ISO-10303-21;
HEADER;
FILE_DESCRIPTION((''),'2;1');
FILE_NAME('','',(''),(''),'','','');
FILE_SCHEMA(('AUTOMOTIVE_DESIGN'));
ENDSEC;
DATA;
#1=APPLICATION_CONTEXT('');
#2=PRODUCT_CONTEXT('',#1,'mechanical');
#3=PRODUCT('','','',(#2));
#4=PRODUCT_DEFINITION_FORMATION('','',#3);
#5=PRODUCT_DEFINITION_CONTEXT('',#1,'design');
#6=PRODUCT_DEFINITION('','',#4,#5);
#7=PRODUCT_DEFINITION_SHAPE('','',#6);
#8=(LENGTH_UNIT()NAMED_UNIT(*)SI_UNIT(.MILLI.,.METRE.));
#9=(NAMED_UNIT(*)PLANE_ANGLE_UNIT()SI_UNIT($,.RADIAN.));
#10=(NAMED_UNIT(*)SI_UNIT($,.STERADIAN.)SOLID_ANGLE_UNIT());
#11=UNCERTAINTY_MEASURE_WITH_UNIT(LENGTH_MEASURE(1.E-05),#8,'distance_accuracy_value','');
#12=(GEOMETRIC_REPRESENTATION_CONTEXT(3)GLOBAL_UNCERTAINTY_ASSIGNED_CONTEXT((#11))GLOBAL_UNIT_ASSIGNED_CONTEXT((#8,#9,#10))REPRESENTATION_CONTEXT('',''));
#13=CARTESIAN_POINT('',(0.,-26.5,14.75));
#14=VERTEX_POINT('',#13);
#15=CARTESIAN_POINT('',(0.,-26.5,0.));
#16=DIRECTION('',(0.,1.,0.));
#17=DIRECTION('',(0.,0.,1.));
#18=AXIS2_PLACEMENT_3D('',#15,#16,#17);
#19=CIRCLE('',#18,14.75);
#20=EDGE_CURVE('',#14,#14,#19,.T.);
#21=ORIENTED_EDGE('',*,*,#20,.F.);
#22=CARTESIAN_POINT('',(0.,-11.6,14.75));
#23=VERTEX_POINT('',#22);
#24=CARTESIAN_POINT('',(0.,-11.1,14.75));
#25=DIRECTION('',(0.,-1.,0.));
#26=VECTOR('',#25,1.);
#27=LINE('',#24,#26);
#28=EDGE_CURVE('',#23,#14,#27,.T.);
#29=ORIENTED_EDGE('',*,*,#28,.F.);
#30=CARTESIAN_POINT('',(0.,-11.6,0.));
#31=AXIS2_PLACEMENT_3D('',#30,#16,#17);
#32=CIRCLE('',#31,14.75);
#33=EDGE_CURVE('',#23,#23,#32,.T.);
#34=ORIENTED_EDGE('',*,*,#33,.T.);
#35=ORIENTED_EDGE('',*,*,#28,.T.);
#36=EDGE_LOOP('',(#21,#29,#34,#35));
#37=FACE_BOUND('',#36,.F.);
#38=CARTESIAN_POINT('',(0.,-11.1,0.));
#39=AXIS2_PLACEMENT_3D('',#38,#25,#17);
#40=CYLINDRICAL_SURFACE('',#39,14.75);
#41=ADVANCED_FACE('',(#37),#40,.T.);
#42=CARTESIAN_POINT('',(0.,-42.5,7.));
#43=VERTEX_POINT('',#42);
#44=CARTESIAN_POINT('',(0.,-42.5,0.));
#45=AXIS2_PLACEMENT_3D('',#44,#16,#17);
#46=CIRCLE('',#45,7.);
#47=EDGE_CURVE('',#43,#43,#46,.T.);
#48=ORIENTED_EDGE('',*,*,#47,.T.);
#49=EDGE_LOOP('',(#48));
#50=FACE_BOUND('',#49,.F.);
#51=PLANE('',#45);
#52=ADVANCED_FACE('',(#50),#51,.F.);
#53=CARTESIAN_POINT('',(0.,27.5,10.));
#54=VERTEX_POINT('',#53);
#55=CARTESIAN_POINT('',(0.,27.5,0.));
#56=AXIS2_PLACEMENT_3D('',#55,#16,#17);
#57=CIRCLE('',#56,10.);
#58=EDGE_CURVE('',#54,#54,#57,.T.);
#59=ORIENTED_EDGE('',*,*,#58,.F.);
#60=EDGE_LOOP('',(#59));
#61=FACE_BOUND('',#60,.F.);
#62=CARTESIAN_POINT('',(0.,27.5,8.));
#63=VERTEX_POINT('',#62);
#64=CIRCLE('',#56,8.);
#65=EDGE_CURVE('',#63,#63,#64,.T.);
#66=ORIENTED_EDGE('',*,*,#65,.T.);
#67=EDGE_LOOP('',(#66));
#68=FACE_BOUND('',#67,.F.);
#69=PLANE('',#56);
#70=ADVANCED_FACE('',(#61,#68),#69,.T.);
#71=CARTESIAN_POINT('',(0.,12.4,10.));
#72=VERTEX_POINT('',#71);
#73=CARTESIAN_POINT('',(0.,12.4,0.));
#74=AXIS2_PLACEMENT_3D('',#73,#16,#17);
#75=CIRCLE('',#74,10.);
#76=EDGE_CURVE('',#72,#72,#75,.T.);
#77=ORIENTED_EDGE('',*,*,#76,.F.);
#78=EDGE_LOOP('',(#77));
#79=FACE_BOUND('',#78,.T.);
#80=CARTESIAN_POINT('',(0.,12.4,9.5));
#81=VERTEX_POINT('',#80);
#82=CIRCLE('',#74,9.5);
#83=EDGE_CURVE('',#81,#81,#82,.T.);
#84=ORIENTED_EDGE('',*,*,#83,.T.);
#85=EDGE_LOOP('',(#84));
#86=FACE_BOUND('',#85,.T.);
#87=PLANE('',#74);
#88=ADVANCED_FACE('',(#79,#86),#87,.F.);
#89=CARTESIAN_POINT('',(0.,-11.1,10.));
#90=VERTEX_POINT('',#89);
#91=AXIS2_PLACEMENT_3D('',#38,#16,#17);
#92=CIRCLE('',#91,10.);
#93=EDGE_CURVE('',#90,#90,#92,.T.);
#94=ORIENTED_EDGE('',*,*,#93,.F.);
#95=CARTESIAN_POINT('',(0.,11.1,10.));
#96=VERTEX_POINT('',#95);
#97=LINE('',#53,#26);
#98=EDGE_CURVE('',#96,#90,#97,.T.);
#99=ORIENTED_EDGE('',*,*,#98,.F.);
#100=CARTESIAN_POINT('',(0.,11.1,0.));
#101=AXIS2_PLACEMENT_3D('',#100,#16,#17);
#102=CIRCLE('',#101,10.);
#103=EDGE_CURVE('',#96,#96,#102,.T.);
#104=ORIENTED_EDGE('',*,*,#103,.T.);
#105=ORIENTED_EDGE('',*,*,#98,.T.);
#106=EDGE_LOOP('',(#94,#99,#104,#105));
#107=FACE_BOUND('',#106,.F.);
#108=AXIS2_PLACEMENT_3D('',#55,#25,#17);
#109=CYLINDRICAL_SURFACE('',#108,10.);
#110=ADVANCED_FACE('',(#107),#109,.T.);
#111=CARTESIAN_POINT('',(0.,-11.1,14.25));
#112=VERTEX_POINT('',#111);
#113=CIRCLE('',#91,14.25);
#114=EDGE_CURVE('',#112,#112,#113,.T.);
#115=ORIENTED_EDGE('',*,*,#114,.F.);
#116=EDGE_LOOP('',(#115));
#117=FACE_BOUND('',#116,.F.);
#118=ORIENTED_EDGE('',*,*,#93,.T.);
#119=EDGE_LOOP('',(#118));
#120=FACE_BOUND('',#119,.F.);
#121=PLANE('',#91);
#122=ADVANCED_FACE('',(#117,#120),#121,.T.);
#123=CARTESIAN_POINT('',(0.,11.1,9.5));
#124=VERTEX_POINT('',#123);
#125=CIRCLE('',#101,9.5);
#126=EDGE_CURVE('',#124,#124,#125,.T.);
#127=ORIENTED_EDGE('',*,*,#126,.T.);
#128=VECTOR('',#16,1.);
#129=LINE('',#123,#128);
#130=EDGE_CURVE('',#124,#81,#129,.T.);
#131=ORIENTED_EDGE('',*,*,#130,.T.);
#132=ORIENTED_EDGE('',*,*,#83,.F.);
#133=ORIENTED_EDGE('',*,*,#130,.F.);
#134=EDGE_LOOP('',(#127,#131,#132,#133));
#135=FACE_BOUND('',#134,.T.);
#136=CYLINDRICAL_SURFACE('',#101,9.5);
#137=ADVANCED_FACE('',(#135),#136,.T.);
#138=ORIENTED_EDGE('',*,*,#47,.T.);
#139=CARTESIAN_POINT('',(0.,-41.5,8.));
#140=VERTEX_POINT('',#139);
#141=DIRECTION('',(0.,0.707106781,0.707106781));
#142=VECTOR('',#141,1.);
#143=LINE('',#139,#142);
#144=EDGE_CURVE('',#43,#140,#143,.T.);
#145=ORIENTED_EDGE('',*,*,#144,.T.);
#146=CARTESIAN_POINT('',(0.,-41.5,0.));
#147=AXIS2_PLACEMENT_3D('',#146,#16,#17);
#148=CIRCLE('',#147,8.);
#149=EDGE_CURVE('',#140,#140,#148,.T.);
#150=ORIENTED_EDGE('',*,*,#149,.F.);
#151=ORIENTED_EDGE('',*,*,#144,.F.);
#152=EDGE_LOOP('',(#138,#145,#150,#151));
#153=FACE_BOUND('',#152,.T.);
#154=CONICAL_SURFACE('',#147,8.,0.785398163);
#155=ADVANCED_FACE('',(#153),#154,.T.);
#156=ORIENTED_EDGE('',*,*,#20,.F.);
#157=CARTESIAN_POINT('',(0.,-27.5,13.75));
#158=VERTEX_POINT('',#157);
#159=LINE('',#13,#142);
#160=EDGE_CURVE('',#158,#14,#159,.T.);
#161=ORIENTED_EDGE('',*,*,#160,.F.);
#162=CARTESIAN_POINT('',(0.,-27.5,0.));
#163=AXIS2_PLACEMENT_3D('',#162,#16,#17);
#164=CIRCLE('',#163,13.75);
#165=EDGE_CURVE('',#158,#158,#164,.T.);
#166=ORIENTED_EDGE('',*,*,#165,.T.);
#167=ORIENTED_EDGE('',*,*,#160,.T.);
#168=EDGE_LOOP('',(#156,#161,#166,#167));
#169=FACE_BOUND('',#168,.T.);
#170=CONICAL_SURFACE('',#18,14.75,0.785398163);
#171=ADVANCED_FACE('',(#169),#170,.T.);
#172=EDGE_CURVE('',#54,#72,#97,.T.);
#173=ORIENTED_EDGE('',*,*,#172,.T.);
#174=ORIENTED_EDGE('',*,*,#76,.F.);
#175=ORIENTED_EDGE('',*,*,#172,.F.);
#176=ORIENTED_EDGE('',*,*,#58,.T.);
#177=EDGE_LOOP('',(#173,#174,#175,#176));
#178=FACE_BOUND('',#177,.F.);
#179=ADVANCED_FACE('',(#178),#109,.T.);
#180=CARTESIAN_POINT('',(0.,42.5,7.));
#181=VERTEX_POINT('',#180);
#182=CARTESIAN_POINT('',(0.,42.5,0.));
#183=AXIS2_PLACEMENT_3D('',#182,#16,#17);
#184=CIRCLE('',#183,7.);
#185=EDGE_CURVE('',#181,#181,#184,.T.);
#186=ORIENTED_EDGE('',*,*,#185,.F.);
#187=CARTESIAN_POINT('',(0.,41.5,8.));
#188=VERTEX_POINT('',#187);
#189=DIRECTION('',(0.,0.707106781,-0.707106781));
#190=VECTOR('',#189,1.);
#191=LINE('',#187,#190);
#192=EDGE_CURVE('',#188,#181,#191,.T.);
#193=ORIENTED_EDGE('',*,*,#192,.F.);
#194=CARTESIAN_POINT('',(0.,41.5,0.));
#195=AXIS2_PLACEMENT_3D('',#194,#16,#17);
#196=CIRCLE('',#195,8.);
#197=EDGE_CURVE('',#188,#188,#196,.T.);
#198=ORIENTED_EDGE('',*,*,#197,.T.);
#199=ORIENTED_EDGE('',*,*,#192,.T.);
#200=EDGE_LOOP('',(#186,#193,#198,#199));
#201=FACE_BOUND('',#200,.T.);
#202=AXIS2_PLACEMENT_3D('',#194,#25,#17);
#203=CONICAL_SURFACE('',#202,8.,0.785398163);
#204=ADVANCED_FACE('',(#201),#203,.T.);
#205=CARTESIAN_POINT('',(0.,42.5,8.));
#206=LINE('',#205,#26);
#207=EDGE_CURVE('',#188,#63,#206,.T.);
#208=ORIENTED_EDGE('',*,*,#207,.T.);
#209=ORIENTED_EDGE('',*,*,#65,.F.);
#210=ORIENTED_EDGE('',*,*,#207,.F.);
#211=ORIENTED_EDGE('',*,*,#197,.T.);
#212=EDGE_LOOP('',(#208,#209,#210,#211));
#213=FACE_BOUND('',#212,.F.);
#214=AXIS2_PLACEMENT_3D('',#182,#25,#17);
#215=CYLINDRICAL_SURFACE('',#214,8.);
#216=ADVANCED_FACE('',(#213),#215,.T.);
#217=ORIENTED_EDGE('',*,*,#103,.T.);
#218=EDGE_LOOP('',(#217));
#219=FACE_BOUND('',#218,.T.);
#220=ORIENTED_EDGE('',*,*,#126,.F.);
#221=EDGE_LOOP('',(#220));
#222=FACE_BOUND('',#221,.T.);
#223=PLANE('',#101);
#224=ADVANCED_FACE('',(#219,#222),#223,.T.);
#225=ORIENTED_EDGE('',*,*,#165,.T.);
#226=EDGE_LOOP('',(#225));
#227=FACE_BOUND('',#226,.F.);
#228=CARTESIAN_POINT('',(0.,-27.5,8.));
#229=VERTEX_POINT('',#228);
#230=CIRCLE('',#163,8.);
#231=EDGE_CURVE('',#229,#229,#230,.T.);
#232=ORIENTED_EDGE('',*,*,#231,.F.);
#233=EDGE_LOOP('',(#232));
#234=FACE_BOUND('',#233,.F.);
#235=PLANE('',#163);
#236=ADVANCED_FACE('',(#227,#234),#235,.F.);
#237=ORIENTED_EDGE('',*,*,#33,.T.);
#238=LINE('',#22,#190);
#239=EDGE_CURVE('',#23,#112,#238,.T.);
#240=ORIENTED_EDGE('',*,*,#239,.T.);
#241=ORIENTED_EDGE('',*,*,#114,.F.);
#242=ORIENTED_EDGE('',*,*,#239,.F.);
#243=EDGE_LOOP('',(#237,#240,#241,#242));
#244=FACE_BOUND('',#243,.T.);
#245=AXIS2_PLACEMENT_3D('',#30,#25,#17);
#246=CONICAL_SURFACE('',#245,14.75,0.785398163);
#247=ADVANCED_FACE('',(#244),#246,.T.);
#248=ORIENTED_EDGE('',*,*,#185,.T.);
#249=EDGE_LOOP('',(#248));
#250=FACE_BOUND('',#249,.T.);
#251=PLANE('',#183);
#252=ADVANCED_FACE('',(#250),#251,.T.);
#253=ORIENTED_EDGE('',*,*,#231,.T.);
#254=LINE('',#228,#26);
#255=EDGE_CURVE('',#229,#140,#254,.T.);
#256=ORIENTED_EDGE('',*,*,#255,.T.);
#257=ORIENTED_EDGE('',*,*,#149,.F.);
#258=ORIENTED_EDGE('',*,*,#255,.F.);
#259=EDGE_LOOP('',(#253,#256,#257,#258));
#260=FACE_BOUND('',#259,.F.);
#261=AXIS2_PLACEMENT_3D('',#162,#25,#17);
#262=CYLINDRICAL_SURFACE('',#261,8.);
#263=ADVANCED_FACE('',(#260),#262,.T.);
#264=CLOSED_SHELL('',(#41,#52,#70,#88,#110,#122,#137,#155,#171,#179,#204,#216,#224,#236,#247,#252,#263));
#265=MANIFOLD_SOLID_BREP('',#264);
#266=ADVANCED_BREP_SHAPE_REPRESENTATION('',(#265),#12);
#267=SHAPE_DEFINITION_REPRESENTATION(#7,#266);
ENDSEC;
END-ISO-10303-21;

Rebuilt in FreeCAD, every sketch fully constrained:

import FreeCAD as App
import Part
import Sketcher

V = App.Vector


def edges_at(feature, points):
    """Names of the edges that pass closest to the given points."""
    edges = feature.Shape.Edges
    near = lambda p: min(range(len(edges)), key=lambda i: edges[i].distToShape(Part.Vertex(*p))[0])
    return sorted({f"Edge{near(p) + 1}" for p in points})

doc = App.newDocument("Part")
params = doc.addObject("Spreadsheet::Sheet", "Params")
for row, (alias, value) in enumerate([
    ("sketch1_width", "15 mm"),
    ("sketch1_height", "8 mm"),
    ("sketch1_height2", "2 mm"),
    ("sketch1_width2", "38.6 mm"),
    ("sketch1_height3", "4.75 mm"),
    ("revolution_angle", "360 deg"),
    ("sketch2_width", "1.3 mm"),
    ("sketch2_height", "0.5 mm"),
    ("groove_angle", "360 deg"),
    ("chamfer_size", "1 mm"),
    ("chamfer2_size", "0.5 mm"),
], start=1):
    params.set(f"A{row}", alias)
    params.set(f"B{row}", "=" + value)
    params.setAlias(f"B{row}", alias)

body = doc.addObject("PartDesign::Body", "Body")

# Sketch on YZ plane
sketch1 = body.newObject("Sketcher::SketchObject", "Sketch")
sketch1.AttachmentSupport = (doc.getObject("YZ_Plane"), [""])
sketch1.MapMode = "FlatFace"
sketch1.addGeometry(Part.LineSegment(V(-42.5, 8, 0), V(-42.5, 0, 0)), False)
sketch1.addGeometry(Part.LineSegment(V(-42.5, 0, 0), V(42.5, 0, 0)), False)
sketch1.addGeometry(Part.LineSegment(V(42.5, 0, 0), V(42.5, 8, 0)), False)
sketch1.addGeometry(Part.LineSegment(V(42.5, 8, 0), V(27.5, 8, 0)), False)
sketch1.addGeometry(Part.LineSegment(V(27.5, 8, 0), V(27.5, 10, 0)), False)
sketch1.addGeometry(Part.LineSegment(V(27.5, 10, 0), V(-11.1, 10, 0)), False)
sketch1.addGeometry(Part.LineSegment(V(-11.1, 10, 0), V(-11.1, 14.75, 0)), False)
sketch1.addGeometry(Part.LineSegment(V(-11.1, 14.75, 0), V(-27.5, 14.75, 0)), False)
sketch1.addGeometry(Part.LineSegment(V(-27.5, 14.75, 0), V(-27.5, 8, 0)), False)
sketch1.addGeometry(Part.LineSegment(V(-27.5, 8, 0), V(-42.5, 8, 0)), False)
sketch1.addConstraint(Sketcher.Constraint("Coincident", 0, 2, 1, 1))
sketch1.addConstraint(Sketcher.Constraint("Coincident", 1, 2, 2, 1))
sketch1.addConstraint(Sketcher.Constraint("Coincident", 2, 2, 3, 1))
sketch1.addConstraint(Sketcher.Constraint("Coincident", 3, 2, 4, 1))
sketch1.addConstraint(Sketcher.Constraint("Coincident", 4, 2, 5, 1))
sketch1.addConstraint(Sketcher.Constraint("Coincident", 5, 2, 6, 1))
sketch1.addConstraint(Sketcher.Constraint("Coincident", 6, 2, 7, 1))
sketch1.addConstraint(Sketcher.Constraint("Coincident", 7, 2, 8, 1))
sketch1.addConstraint(Sketcher.Constraint("Coincident", 8, 2, 9, 1))
sketch1.addConstraint(Sketcher.Constraint("Coincident", 9, 2, 0, 1))
sketch1.addConstraint(Sketcher.Constraint("Vertical", 0))
sketch1.addConstraint(Sketcher.Constraint("Horizontal", 1))
sketch1.addConstraint(Sketcher.Constraint("Vertical", 2))
sketch1.addConstraint(Sketcher.Constraint("Horizontal", 3))
sketch1.addConstraint(Sketcher.Constraint("Vertical", 4))
sketch1.addConstraint(Sketcher.Constraint("Horizontal", 5))
sketch1.addConstraint(Sketcher.Constraint("Vertical", 6))
sketch1.addConstraint(Sketcher.Constraint("Horizontal", 7))
sketch1.addConstraint(Sketcher.Constraint("Vertical", 8))
sketch1.addConstraint(Sketcher.Constraint("Horizontal", 9))
sketch1.addConstraint(Sketcher.Constraint("Symmetric", 0, 2, 1, 2, -1, 1))
sketch1.addConstraint(Sketcher.Constraint("Symmetric", 3, 2, 8, 2, -2))
sketch1.addConstraint(Sketcher.Constraint("DistanceX", 3, 2, 3, 1, 15.0))
sketch1.addConstraint(Sketcher.Constraint("DistanceX", 7, 2, 4, 2, 55.0))
sketch1.addConstraint(Sketcher.Constraint("DistanceY", 0, 2, 0, 1, 8.0))
sketch1.addConstraint(Sketcher.Constraint("DistanceY", 4, 1, 4, 2, 2.0))
sketch1.addConstraint(Sketcher.Constraint("DistanceX", 5, 2, 5, 1, 38.6))
sketch1.addConstraint(Sketcher.Constraint("DistanceY", 6, 1, 6, 2, 4.75))
sketch1.setExpression("Constraints[22]", "Params.sketch1_width")
sketch1.setExpression("Constraints[24]", "Params.sketch1_height")
sketch1.setExpression("Constraints[25]", "Params.sketch1_height2")
sketch1.setExpression("Constraints[26]", "Params.sketch1_width2")
sketch1.setExpression("Constraints[27]", "Params.sketch1_height3")
revolution = body.newObject("PartDesign::Revolution", "Revolution")
revolution.Profile = sketch1
revolution.ReferenceAxis = (sketch1, ["H_Axis"])
revolution.setExpression("Angle", "Params.revolution_angle")

# Sketch on YZ plane
sketch2 = body.newObject("Sketcher::SketchObject", "Sketch001")
sketch2.AttachmentSupport = (doc.getObject("YZ_Plane"), [""])
sketch2.MapMode = "FlatFace"
sketch2.addGeometry(Part.LineSegment(V(12.4, 10, 0), V(11.1, 10, 0)), False)
sketch2.addGeometry(Part.LineSegment(V(11.1, 10, 0), V(11.1, 9.5, 0)), False)
sketch2.addGeometry(Part.LineSegment(V(11.1, 9.5, 0), V(12.4, 9.5, 0)), False)
sketch2.addGeometry(Part.LineSegment(V(12.4, 9.5, 0), V(12.4, 10, 0)), False)
sketch2.addConstraint(Sketcher.Constraint("Coincident", 0, 2, 1, 1))
sketch2.addConstraint(Sketcher.Constraint("Coincident", 1, 2, 2, 1))
sketch2.addConstraint(Sketcher.Constraint("Coincident", 2, 2, 3, 1))
sketch2.addConstraint(Sketcher.Constraint("Coincident", 3, 2, 0, 1))
sketch2.addConstraint(Sketcher.Constraint("Horizontal", 0))
sketch2.addConstraint(Sketcher.Constraint("Vertical", 1))
sketch2.addConstraint(Sketcher.Constraint("Horizontal", 2))
sketch2.addConstraint(Sketcher.Constraint("Vertical", 3))
sketch2.addConstraint(Sketcher.Constraint("DistanceX", 0, 2, 0, 1, 1.3))
sketch2.addConstraint(Sketcher.Constraint("DistanceY", 1, 2, 1, 1, 0.5))
sketch2.addConstraint(Sketcher.Constraint("DistanceY", -1, 1, 0, 2, 10.0))
sketch2.addConstraint(Sketcher.Constraint("DistanceX", -1, 1, 0, 2, 11.1))
sketch2.setExpression("Constraints[8]", "Params.sketch2_width")
sketch2.setExpression("Constraints[9]", "Params.sketch2_height")
groove = body.newObject("PartDesign::Groove", "Groove")
groove.Profile = sketch2
groove.ReferenceAxis = (sketch2, ["H_Axis"])
groove.setExpression("Angle", "Params.groove_angle")
doc.recompute()

chamfer = body.newObject("PartDesign::Chamfer", "Chamfer")
chamfer.Base = (groove, edges_at(groove, [(0, -42.5, -8), (0, 42.5, -8), (0, -27.5, -14.75)]))
chamfer.setExpression("Size", "Params.chamfer_size")
doc.recompute()

chamfer2 = body.newObject("PartDesign::Chamfer", "Chamfer001")
chamfer2.Base = (chamfer, edges_at(chamfer, [(0, -11.1, -14.75)]))
chamfer2.setExpression("Size", "Params.chamfer2_size")

doc.recompute()
